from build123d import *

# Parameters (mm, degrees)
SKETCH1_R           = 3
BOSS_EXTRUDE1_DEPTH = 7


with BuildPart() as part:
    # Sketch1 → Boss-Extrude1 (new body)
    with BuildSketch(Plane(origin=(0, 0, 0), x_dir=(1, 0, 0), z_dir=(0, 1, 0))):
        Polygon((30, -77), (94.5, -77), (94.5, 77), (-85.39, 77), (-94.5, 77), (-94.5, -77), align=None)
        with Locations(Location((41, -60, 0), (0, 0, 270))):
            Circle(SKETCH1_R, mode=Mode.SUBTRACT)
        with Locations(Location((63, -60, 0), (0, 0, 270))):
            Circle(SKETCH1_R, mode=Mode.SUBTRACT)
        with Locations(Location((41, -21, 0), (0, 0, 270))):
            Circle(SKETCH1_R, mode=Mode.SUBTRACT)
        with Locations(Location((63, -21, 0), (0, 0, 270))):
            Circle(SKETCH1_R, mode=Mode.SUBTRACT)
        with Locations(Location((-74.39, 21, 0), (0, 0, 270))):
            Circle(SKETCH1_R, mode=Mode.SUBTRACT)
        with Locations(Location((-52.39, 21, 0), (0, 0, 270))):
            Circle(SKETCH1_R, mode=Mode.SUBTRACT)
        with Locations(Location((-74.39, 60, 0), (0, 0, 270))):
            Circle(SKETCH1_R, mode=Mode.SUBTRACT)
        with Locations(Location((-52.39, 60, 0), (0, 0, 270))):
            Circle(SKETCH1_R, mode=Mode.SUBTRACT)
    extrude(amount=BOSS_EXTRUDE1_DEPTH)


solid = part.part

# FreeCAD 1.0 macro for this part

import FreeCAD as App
import Part
import Sketcher

doc = App.newDocument("Part")
params = doc.addObject("Spreadsheet::Sheet", "Params")
for row, (alias, value) in enumerate([
    ("sketch1_diameter", "6 mm"),
    ("sketch1_width", "189 mm"),
    ("sketch1_height", "154 mm"),
    ("pad1_length", "7 mm"),
], start=1):
    params.set(f"A{row}", alias)
    params.set(f"B{row}", "=" + value)
    params.setAlias(f"B{row}", alias)

body = doc.addObject("PartDesign::Body", "Body")

# Sketch on XZ plane
sketch1 = body.newObject("Sketcher::SketchObject", "Sketch")
sketch1.AttachmentSupport = (doc.getObject("XZ_Plane"), [""])
sketch1.MapMode = "FlatFace"
sketch1.addGeometry([
    Part.LineSegment(App.Vector(94.5, 77, 0), App.Vector(94.5, -77, 0)),  # 0
    Part.LineSegment(App.Vector(94.5, -77, 0), App.Vector(-94.5, -77, 0)),  # 1
    Part.LineSegment(App.Vector(-94.5, -77, 0), App.Vector(-94.5, 77, 0)),  # 2
    Part.LineSegment(App.Vector(-94.5, 77, 0), App.Vector(94.5, 77, 0)),  # 3
    Part.Circle(App.Vector(41, 60, 0), App.Vector(0, 0, 1), 3),  # 4
    Part.Circle(App.Vector(63, 60, 0), App.Vector(0, 0, 1), 3),  # 5
    Part.Circle(App.Vector(41, 21, 0), App.Vector(0, 0, 1), 3),  # 6
    Part.Circle(App.Vector(63, 21, 0), App.Vector(0, 0, 1), 3),  # 7
    Part.Circle(App.Vector(-74.4, -21, 0), App.Vector(0, 0, 1), 3),  # 8
    Part.Circle(App.Vector(-52.4, -21, 0), App.Vector(0, 0, 1), 3),  # 9
    Part.Circle(App.Vector(-74.4, -60, 0), App.Vector(0, 0, 1), 3),  # 10
    Part.Circle(App.Vector(-52.4, -60, 0), App.Vector(0, 0, 1), 3),  # 11
], False)
sketch1.addConstraint([
    Sketcher.Constraint("Coincident", 0, 2, 1, 1),
    Sketcher.Constraint("Coincident", 1, 2, 2, 1),
    Sketcher.Constraint("Coincident", 2, 2, 3, 1),
    Sketcher.Constraint("Coincident", 3, 2, 0, 1),
    Sketcher.Constraint("Vertical", 0),
    Sketcher.Constraint("Horizontal", 1),
    Sketcher.Constraint("Vertical", 2),
    Sketcher.Constraint("Horizontal", 3),
    Sketcher.Constraint("Equal", 4, 5),
    Sketcher.Constraint("Equal", 5, 6),
    Sketcher.Constraint("Equal", 6, 7),
    Sketcher.Constraint("Equal", 7, 8),
    Sketcher.Constraint("Equal", 8, 9),
    Sketcher.Constraint("Equal", 9, 10),
    Sketcher.Constraint("Equal", 10, 11),
    Sketcher.Constraint("Symmetric", 0, 2, 2, 2, -1, 1),
    Sketcher.Constraint("Horizontal", 4, 3, 5, 3),
    Sketcher.Constraint("Horizontal", 6, 3, 7, 3),
    Sketcher.Constraint("Horizontal", 8, 3, 9, 3),
    Sketcher.Constraint("Horizontal", 10, 3, 11, 3),
    Sketcher.Constraint("Vertical", 4, 3, 6, 3),
    Sketcher.Constraint("Vertical", 5, 3, 7, 3),
    Sketcher.Constraint("Vertical", 8, 3, 10, 3),
    Sketcher.Constraint("Vertical", 9, 3, 11, 3),
    Sketcher.Constraint("Diameter", 4, 6.0),
    Sketcher.Constraint("DistanceX", 1, 2, 1, 1, 189.0),
    Sketcher.Constraint("DistanceY", 0, 2, 0, 1, 154.0),
    Sketcher.Constraint("DistanceX", -1, 1, 4, 3, 41.0),
    Sketcher.Constraint("DistanceY", -1, 1, 4, 3, 60.0),
    Sketcher.Constraint("DistanceX", -1, 1, 5, 3, 63.0),
    Sketcher.Constraint("DistanceY", -1, 1, 6, 3, 21.0),
    Sketcher.Constraint("DistanceY", 8, 3, -1, 1, 21.0),
    Sketcher.Constraint("DistanceY", 10, 3, -1, 1, 60.0),
    Sketcher.Constraint("DistanceX", 8, 3, 9, 3, 22.0),
    Sketcher.Constraint("DistanceX", 8, 3, -1, 1, 74.39),
])
sketch1.setExpression("Constraints[24]", "Params.sketch1_diameter")
sketch1.setExpression("Constraints[25]", "Params.sketch1_width")
sketch1.setExpression("Constraints[26]", "Params.sketch1_height")
pad1 = body.newObject("PartDesign::Pad", "Pad")
pad1.Profile = sketch1
pad1.setExpression("Length", "Params.pad1_length")
pad1.Reversed = True

doc.recompute()
